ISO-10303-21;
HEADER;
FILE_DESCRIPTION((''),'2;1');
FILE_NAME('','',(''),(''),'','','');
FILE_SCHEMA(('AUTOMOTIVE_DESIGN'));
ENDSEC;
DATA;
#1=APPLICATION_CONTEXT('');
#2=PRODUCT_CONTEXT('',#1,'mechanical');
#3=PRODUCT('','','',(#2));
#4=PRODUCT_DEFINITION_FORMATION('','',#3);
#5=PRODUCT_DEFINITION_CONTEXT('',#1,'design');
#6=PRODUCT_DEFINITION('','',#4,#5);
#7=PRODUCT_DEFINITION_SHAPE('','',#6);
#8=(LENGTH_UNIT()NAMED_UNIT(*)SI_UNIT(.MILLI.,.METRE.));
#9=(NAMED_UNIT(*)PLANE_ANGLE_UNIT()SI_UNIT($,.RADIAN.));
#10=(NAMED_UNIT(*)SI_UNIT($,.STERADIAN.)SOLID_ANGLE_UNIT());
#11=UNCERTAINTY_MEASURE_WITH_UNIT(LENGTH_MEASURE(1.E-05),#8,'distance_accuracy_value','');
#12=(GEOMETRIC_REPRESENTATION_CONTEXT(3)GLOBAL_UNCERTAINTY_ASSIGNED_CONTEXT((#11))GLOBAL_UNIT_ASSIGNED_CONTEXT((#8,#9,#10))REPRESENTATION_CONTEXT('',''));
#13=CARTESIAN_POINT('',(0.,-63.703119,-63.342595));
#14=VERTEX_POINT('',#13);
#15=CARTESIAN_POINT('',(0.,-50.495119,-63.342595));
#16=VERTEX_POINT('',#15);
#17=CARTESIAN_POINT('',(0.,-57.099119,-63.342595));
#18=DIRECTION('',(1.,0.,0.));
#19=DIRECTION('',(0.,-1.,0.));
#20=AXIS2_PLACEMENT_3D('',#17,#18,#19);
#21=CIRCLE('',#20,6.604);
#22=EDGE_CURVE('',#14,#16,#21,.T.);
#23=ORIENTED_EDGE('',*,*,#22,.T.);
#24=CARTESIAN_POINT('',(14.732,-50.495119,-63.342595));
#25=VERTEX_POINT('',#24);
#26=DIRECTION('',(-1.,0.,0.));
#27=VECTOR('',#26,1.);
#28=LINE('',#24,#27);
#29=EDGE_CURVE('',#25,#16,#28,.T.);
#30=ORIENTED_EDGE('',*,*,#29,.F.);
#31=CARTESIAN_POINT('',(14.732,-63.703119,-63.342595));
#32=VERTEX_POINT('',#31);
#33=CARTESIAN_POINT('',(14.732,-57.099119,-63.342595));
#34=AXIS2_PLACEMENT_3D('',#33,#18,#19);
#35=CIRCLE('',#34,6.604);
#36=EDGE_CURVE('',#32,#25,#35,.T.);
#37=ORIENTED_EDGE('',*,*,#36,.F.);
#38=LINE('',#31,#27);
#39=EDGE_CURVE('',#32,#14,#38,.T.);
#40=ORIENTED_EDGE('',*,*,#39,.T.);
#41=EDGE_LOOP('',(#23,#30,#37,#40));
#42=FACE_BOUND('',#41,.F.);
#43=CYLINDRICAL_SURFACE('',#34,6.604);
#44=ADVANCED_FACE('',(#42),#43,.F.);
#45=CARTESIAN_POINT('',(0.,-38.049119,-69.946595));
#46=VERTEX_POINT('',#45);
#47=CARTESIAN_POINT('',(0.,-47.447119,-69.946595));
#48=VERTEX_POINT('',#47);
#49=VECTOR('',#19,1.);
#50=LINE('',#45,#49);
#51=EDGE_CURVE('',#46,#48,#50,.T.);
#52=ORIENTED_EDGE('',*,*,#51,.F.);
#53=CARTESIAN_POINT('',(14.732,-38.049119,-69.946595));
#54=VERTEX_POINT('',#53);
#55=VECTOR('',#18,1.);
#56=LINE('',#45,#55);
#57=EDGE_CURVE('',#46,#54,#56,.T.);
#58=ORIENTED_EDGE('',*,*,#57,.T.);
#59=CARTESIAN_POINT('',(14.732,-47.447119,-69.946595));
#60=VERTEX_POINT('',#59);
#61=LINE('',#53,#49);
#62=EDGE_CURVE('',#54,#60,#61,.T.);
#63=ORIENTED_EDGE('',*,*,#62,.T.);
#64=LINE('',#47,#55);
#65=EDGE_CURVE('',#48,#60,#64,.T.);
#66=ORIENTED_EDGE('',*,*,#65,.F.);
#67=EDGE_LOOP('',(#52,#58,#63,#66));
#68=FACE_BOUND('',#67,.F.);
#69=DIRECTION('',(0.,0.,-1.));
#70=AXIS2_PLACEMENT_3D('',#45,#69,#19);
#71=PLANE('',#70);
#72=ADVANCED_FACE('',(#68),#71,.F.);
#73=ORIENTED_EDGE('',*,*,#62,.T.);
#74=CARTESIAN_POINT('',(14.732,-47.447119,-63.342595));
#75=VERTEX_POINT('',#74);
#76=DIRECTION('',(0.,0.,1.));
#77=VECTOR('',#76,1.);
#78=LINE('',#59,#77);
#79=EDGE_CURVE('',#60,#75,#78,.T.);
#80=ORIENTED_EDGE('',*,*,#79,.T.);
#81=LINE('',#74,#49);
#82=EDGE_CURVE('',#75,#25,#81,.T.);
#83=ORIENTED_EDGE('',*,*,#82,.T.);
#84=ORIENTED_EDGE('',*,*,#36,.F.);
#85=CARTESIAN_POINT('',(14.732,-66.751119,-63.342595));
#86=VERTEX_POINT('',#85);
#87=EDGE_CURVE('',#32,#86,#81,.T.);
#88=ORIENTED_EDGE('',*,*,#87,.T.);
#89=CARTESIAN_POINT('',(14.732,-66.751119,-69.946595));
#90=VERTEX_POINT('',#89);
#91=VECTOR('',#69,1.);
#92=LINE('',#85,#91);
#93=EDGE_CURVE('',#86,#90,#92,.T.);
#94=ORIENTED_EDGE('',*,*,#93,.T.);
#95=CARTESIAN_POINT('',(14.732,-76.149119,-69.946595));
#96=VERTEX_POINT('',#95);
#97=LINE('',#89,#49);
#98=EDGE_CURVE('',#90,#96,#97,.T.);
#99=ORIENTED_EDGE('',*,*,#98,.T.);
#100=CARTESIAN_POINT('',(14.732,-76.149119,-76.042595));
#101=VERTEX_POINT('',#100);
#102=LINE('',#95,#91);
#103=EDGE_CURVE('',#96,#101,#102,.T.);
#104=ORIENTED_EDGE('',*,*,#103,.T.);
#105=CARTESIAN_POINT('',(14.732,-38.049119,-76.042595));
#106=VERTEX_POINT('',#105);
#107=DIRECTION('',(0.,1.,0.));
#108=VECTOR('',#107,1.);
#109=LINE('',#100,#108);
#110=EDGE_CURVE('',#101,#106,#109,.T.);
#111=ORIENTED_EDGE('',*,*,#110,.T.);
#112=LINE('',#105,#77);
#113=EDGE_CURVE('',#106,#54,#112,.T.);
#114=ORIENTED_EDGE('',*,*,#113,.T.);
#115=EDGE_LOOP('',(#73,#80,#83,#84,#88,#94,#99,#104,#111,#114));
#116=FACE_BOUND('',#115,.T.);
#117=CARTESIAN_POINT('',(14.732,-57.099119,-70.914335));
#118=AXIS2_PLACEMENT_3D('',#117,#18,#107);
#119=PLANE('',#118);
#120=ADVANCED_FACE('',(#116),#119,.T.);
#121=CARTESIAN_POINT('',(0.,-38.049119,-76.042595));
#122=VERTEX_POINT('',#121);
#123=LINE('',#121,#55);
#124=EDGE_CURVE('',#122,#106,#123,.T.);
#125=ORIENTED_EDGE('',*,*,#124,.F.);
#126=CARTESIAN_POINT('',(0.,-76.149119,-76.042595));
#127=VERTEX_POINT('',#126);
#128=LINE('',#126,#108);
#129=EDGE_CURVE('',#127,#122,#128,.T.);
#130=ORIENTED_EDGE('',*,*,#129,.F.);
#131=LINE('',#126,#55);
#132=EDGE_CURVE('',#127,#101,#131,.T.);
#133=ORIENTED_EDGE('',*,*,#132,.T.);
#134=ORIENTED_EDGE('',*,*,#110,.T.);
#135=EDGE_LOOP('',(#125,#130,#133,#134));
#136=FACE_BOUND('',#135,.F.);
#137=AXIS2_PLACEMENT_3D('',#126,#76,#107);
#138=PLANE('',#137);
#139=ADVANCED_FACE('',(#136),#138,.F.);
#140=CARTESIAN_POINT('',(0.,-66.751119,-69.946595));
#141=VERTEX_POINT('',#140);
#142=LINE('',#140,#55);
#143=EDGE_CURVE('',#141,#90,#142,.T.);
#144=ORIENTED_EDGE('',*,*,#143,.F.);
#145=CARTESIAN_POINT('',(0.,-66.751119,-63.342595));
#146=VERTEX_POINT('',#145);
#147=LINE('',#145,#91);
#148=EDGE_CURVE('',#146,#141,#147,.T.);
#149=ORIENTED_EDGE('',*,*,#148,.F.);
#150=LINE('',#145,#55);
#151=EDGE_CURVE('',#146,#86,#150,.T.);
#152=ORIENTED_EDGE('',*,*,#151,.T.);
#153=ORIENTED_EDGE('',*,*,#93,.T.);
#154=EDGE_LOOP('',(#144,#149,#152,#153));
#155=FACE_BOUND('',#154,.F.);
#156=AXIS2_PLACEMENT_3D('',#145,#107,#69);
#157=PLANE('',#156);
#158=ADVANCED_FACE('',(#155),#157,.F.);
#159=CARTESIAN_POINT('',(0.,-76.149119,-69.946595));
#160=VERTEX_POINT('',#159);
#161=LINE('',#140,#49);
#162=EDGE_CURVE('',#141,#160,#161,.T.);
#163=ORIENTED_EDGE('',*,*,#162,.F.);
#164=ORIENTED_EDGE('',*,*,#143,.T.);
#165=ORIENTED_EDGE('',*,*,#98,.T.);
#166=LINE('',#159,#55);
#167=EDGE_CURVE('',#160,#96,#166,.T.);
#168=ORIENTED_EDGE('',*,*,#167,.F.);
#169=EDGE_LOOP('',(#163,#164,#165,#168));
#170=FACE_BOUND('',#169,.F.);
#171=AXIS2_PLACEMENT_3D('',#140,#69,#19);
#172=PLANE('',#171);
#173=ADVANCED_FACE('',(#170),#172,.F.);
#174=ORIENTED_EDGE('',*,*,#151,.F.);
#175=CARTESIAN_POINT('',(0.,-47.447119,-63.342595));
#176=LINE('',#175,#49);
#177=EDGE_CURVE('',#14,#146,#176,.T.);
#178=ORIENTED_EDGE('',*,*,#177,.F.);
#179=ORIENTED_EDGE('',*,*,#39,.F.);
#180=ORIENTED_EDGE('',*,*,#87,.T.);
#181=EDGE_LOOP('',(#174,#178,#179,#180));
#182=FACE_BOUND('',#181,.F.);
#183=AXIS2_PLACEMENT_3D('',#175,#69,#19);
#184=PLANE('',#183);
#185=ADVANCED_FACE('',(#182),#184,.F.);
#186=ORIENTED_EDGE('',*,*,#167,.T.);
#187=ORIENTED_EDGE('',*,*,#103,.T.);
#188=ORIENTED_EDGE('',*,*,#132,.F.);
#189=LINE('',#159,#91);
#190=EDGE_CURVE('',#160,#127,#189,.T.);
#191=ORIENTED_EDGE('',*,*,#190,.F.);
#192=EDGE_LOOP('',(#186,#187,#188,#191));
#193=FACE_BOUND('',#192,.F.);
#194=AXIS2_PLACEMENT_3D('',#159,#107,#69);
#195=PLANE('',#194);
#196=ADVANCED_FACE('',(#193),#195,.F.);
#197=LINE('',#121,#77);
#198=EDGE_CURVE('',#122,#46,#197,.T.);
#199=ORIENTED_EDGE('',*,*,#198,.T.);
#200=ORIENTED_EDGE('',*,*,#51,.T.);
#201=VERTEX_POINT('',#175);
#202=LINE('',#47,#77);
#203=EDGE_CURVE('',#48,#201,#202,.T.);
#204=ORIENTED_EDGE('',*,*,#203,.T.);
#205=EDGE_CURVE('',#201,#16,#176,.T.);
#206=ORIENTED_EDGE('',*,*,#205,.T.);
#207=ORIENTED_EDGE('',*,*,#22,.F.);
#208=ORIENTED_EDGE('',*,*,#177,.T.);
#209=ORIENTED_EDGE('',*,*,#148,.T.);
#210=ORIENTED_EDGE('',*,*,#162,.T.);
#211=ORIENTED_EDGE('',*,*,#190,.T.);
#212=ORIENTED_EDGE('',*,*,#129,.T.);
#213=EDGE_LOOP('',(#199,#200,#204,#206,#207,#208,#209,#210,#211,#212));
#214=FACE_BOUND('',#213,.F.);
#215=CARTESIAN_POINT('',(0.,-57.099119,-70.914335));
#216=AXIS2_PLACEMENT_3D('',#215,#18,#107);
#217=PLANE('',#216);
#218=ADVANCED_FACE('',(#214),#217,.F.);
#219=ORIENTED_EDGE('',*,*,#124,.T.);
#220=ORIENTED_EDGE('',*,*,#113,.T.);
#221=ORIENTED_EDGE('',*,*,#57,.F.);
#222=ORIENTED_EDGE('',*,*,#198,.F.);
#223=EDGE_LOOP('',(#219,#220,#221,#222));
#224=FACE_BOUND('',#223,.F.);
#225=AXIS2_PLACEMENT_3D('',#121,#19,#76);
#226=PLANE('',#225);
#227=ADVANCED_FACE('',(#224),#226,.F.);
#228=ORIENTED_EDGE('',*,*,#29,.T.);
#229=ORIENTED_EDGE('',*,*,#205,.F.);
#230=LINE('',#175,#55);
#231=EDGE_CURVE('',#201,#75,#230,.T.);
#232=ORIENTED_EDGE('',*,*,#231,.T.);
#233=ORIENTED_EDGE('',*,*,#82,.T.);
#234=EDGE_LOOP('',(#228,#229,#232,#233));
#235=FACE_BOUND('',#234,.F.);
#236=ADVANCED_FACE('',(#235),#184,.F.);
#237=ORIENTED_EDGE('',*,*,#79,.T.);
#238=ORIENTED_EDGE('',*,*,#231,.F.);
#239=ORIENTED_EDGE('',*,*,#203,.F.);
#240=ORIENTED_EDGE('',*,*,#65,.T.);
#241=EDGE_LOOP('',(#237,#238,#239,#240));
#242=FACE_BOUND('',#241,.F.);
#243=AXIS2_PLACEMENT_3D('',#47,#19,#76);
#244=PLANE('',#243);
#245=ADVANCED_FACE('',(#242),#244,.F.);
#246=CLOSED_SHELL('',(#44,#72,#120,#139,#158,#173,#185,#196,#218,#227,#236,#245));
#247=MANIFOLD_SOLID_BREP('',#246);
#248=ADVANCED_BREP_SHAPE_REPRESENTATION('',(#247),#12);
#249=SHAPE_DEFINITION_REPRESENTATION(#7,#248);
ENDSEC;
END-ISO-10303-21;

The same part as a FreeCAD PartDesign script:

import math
import FreeCAD as App
import Part
import Sketcher
from FreeCAD import Vector
Q = App.Units.Quantity


def add_polygon(sketch, points):
    """Adds a closed chain of lines whose ends are joined by coincident constraints."""
    first, n = sketch.GeometryCount, len(points)
    for a, b in zip(points, points[1:] + points[:1]):
        sketch.addGeometry(Part.LineSegment(App.Vector(*a, 0), App.Vector(*b, 0)), False)
    for i in range(n):
        sketch.addConstraint(Sketcher.Constraint("Coincident", first + i, 2, first + (i + 1) % n, 1))

doc = App.newDocument("Part")
params = doc.addObject("Spreadsheet::Sheet", "Params")
for row, (alias, value) in enumerate([
    ("sketch1_width", "1.5 in"),
    ("sketch1_width2", "0.37 in"),
    ("sketch1_height", "0.24 in"),
    ("sketch1_height2", "0.26 in"),
    ("pad1_length", "0.58 in"),
    ("sketch2_radius", "0.26 in"),
], start=1):
    params.set(f"A{row}", alias)
    params.set(f"B{row}", "=" + value)
    params.setAlias(f"B{row}", alias)

body = doc.addObject("PartDesign::Body", "Body")

# Sketch on YZ plane
sketch1 = body.newObject("Sketcher::SketchObject", "Sketch")
sketch1.AttachmentSupport = (doc.getObject("YZ_Plane"), [""])
sketch1.MapMode = "FlatFace"
add_polygon(sketch1, [(-76, -70), (-76, -76), (-38, -76), (-38, -70), (-47, -70), (-47, -63), (-67, -63), (-67, -70)])  # lines 0-7
sketch1.addConstraint(Sketcher.Constraint("Vertical", 0))
sketch1.addConstraint(Sketcher.Constraint("Horizontal", 1))
sketch1.addConstraint(Sketcher.Constraint("Vertical", 2))
sketch1.addConstraint(Sketcher.Constraint("Horizontal", 3))
sketch1.addConstraint(Sketcher.Constraint("Vertical", 4))
sketch1.addConstraint(Sketcher.Constraint("Horizontal", 5))
sketch1.addConstraint(Sketcher.Constraint("Vertical", 6))
sketch1.addConstraint(Sketcher.Constraint("Horizontal", 7))
sketch1.addConstraint(Sketcher.Constraint("Horizontal", 3, 2, 6, 2))
sketch1.addConstraint(Sketcher.Constraint("Equal", 3, 7))
sketch1.addConstraint(Sketcher.Constraint("DistanceX", 1, 1, 1, 2, Q("1.5 in")))
sketch1.addConstraint(Sketcher.Constraint("DistanceX", 3, 2, 3, 1, Q("0.37 in")))
sketch1.addConstraint(Sketcher.Constraint("DistanceY", 0, 2, 0, 1, Q("0.24 in")))
sketch1.addConstraint(Sketcher.Constraint("DistanceY", 4, 1, 4, 2, Q("0.26 in")))
sketch1.addConstraint(Sketcher.Constraint("DistanceX", 0, 2, -1, 1, Q("76.149119 mm")))
sketch1.addConstraint(Sketcher.Constraint("DistanceY", 0, 2, -1, 1, Q("76.042595 mm")))
sketch1.setExpression("Constraints[18]", "Params.sketch1_width")
sketch1.setExpression("Constraints[19]", "Params.sketch1_width2")
sketch1.setExpression("Constraints[20]", "Params.sketch1_height")
sketch1.setExpression("Constraints[21]", "Params.sketch1_height2")
pad1 = body.newObject("PartDesign::Pad", "Pad")
pad1.Profile = sketch1
pad1.setExpression("Length", "Params.pad1_length")

# Sketch on YZ plane
sketch2 = body.newObject("Sketcher::SketchObject", "Sketch001")
sketch2.AttachmentSupport = (doc.getObject("YZ_Plane"), [""])
sketch2.MapMode = "FlatFace"
sketch2.AttachmentOffset = App.Placement(Vector(0, 0, 0.58 * 25.4), App.Rotation())
sketch2.addGeometry(Part.ArcOfCircle(Part.Circle(Vector(-57, -63, 0), Vector(0, 0, 1), 7), math.radians(180), math.radians(360)), False)
sketch2.addGeometry(Part.LineSegment(Vector(-50, -63, 0), Vector(-64, -63, 0)), False)
sketch2.addConstraint(Sketcher.Constraint("Coincident", 0, 1, 1, 2))
sketch2.addConstraint(Sketcher.Constraint("Coincident", 1, 1, 0, 2))
sketch2.addConstraint(Sketcher.Constraint("Horizontal", 1))
sketch2.addConstraint(Sketcher.Constraint("Radius", 0, Q("0.26 in")))
sketch2.addConstraint(Sketcher.Constraint("DistanceX", 0, 3, -1, 1, Q("57.099119 mm")))
sketch2.addConstraint(Sketcher.Constraint("DistanceY", 0, 3, -1, 1, Q("63.342595 mm")))
sketch2.addConstraint(Sketcher.Constraint("DistanceY", 0, 1, -1, 1, Q("63.342595 mm")))
sketch2.setExpression("Constraints[3]", "Params.sketch2_radius")
pocket1 = body.newObject("PartDesign::Pocket", "Pocket")
pocket1.Profile = sketch2
pocket1.Type = "ThroughAll"

doc.recompute()
